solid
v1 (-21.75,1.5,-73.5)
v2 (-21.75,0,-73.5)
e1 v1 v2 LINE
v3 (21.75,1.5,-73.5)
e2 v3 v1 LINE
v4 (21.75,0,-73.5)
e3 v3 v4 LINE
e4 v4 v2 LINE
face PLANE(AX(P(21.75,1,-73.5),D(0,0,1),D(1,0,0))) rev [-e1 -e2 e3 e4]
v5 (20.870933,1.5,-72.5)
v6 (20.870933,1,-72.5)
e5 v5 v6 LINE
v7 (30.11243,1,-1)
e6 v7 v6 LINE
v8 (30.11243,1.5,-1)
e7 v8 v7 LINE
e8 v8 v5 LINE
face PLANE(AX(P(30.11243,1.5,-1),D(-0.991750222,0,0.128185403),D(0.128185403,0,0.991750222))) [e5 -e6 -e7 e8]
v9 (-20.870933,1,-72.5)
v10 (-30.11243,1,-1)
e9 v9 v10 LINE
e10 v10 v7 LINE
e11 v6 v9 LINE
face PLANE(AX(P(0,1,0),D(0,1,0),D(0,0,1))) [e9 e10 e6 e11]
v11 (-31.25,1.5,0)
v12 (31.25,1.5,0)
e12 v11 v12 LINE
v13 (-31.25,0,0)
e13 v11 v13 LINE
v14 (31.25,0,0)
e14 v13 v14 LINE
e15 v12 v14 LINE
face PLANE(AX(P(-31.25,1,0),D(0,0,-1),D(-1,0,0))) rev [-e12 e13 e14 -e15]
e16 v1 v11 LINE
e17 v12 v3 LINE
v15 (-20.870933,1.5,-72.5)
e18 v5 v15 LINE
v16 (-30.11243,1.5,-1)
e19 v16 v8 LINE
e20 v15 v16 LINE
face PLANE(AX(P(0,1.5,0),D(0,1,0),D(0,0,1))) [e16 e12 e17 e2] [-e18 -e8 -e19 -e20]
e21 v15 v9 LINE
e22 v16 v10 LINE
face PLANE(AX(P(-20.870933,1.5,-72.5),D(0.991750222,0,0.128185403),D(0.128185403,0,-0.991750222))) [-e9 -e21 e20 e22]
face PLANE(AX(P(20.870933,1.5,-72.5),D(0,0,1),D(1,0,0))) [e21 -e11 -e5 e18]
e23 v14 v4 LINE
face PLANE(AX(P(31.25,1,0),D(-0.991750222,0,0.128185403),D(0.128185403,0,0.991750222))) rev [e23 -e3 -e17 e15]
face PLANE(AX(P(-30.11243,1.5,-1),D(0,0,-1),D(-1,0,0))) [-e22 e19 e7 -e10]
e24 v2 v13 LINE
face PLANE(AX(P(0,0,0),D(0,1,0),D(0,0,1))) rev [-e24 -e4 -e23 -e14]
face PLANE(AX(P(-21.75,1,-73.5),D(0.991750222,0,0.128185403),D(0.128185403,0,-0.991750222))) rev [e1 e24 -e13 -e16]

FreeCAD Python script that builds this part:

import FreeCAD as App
import Part
import Sketcher

V = App.Vector

doc = App.newDocument("Part")
params = doc.addObject("Spreadsheet::Sheet", "Params")
for row, (alias, value) in enumerate([
    ("sketch1_width", "62.5 mm"),
    ("sketch1_width2", "43.5 mm"),
    ("pad1_length", "1 mm"),
    ("sketch2_width", "62.5 mm"),
    ("sketch2_width2", "43.5 mm"),
    ("pad2_length", "0.5 mm"),
], start=1):
    params.set(f"A{row}", alias)
    params.set(f"B{row}", "=" + value)
    params.setAlias(f"B{row}", alias)

body = doc.addObject("PartDesign::Body", "Body")

sketch1 = body.newObject("Sketcher::SketchObject", "Sketch")
sketch1.AttachmentSupport = (doc.getObject("XZ_Plane"), [""])
sketch1.MapMode = "FlatFace"
sketch1.addGeometry([
    Part.LineSegment(V(-31, 0, 0), V(31, 0, 0)),
    Part.LineSegment(V(31, 0, 0), V(22, -74, 0)),
    Part.LineSegment(V(22, -74, 0), V(-22, -74, 0)),
    Part.LineSegment(V(-22, -74, 0), V(-31, 0, 0)),
], False)
sketch1.addConstraint([
    Sketcher.Constraint("Coincident", 0, 2, 1, 1),
    Sketcher.Constraint("Coincident", 1, 2, 2, 1),
    Sketcher.Constraint("Coincident", 2, 2, 3, 1),
    Sketcher.Constraint("Coincident", 3, 2, 0, 1),
    Sketcher.Constraint("Horizontal", 0),
    Sketcher.Constraint("Horizontal", 2),
    Sketcher.Constraint("Symmetric", 0, 2, 3, 2, -1, 1),
    Sketcher.Constraint("Equal", 1, 3),
    Sketcher.Constraint("DistanceX", 0, 1, 0, 2, 62.5),
    Sketcher.Constraint("DistanceX", 2, 2, 2, 1, 43.5),
    Sketcher.Constraint("DistanceY", 1, 2, -1, 1, 73.5),
])
sketch1.setExpression("Constraints[8]", "Params.sketch1_width")
sketch1.setExpression("Constraints[9]", "Params.sketch1_width2")
pad1 = body.newObject("PartDesign::Pad", "Pad")
pad1.Profile = sketch1
pad1.setExpression("Length", "Params.pad1_length")
pad1.Reversed = True

sketch2 = body.newObject("Sketcher::SketchObject", "Sketch001")
sketch2.AttachmentSupport = (doc.getObject("XZ_Plane"), [""])
sketch2.MapMode = "FlatFace"
sketch2.AttachmentOffset = App.Placement(V(0, 0, -1), App.Rotation())
sketch2.addGeometry([
    Part.LineSegment(V(-22, -74, 0), V(-31, 0, 0)),
    Part.LineSegment(V(-31, 0, 0), V(31, 0, 0)),
    Part.LineSegment(V(31, 0, 0), V(22, -74, 0)),
    Part.LineSegment(V(22, -74, 0), V(-22, -74, 0)),
    Part.LineSegment(V(-30, -1, 0), V(-21, -72, 0)),
    Part.LineSegment(V(-21, -72, 0), V(21, -72, 0)),
    Part.LineSegment(V(21, -72, 0), V(30, -1, 0)),
    Part.LineSegment(V(30, -1, 0), V(-30, -1, 0)),
], False)
sketch2.addConstraint([
    Sketcher.Constraint("Coincident", 0, 2, 1, 1),
    Sketcher.Constraint("Coincident", 1, 2, 2, 1),
    Sketcher.Constraint("Coincident", 2, 2, 3, 1),
    Sketcher.Constraint("Coincident", 3, 2, 0, 1),
    Sketcher.Constraint("Coincident", 4, 2, 5, 1),
    Sketcher.Constraint("Coincident", 5, 2, 6, 1),
    Sketcher.Constraint("Coincident", 6, 2, 7, 1),
    Sketcher.Constraint("Coincident", 7, 2, 4, 1),
    Sketcher.Constraint("Horizontal", 1),
    Sketcher.Constraint("Horizontal", 3),
    Sketcher.Constraint("Horizontal", 5),
    Sketcher.Constraint("Horizontal", 7),
    Sketcher.Constraint("Symmetric", 0, 2, 1, 2, -1, 1),
    Sketcher.Constraint("Parallel", 0, 4),
    Sketcher.Constraint("Parallel", 2, 6),
    Sketcher.Constraint("Equal", 0, 2),
    Sketcher.Constraint("DistanceX", 1, 1, 1, 2, 62.5),
    Sketcher.Constraint("DistanceX", 3, 2, 3, 1, 43.5),
    Sketcher.Constraint("DistanceY", 6, 2, -1, 1, 1.0),
    Sketcher.Constraint("DistanceY", 3, 2, 4, 2, 1.0),
    Sketcher.Constraint("DistanceY", 2, 2, -1, 1, 73.5),
    Sketcher.Constraint("DistanceX", 7, 2, 7, 1, 60.22486),
    Sketcher.Constraint("DistanceX", -1, 1, 6, 2, 30.11243),
])
sketch2.setExpression("Constraints[16]", "Params.sketch2_width")
sketch2.setExpression("Constraints[17]", "Params.sketch2_width2")
pad2 = body.newObject("PartDesign::Pad", "Pad001")
pad2.Profile = sketch2
pad2.setExpression("Length", "Params.pad2_length")
pad2.Reversed = True

doc.recompute()
